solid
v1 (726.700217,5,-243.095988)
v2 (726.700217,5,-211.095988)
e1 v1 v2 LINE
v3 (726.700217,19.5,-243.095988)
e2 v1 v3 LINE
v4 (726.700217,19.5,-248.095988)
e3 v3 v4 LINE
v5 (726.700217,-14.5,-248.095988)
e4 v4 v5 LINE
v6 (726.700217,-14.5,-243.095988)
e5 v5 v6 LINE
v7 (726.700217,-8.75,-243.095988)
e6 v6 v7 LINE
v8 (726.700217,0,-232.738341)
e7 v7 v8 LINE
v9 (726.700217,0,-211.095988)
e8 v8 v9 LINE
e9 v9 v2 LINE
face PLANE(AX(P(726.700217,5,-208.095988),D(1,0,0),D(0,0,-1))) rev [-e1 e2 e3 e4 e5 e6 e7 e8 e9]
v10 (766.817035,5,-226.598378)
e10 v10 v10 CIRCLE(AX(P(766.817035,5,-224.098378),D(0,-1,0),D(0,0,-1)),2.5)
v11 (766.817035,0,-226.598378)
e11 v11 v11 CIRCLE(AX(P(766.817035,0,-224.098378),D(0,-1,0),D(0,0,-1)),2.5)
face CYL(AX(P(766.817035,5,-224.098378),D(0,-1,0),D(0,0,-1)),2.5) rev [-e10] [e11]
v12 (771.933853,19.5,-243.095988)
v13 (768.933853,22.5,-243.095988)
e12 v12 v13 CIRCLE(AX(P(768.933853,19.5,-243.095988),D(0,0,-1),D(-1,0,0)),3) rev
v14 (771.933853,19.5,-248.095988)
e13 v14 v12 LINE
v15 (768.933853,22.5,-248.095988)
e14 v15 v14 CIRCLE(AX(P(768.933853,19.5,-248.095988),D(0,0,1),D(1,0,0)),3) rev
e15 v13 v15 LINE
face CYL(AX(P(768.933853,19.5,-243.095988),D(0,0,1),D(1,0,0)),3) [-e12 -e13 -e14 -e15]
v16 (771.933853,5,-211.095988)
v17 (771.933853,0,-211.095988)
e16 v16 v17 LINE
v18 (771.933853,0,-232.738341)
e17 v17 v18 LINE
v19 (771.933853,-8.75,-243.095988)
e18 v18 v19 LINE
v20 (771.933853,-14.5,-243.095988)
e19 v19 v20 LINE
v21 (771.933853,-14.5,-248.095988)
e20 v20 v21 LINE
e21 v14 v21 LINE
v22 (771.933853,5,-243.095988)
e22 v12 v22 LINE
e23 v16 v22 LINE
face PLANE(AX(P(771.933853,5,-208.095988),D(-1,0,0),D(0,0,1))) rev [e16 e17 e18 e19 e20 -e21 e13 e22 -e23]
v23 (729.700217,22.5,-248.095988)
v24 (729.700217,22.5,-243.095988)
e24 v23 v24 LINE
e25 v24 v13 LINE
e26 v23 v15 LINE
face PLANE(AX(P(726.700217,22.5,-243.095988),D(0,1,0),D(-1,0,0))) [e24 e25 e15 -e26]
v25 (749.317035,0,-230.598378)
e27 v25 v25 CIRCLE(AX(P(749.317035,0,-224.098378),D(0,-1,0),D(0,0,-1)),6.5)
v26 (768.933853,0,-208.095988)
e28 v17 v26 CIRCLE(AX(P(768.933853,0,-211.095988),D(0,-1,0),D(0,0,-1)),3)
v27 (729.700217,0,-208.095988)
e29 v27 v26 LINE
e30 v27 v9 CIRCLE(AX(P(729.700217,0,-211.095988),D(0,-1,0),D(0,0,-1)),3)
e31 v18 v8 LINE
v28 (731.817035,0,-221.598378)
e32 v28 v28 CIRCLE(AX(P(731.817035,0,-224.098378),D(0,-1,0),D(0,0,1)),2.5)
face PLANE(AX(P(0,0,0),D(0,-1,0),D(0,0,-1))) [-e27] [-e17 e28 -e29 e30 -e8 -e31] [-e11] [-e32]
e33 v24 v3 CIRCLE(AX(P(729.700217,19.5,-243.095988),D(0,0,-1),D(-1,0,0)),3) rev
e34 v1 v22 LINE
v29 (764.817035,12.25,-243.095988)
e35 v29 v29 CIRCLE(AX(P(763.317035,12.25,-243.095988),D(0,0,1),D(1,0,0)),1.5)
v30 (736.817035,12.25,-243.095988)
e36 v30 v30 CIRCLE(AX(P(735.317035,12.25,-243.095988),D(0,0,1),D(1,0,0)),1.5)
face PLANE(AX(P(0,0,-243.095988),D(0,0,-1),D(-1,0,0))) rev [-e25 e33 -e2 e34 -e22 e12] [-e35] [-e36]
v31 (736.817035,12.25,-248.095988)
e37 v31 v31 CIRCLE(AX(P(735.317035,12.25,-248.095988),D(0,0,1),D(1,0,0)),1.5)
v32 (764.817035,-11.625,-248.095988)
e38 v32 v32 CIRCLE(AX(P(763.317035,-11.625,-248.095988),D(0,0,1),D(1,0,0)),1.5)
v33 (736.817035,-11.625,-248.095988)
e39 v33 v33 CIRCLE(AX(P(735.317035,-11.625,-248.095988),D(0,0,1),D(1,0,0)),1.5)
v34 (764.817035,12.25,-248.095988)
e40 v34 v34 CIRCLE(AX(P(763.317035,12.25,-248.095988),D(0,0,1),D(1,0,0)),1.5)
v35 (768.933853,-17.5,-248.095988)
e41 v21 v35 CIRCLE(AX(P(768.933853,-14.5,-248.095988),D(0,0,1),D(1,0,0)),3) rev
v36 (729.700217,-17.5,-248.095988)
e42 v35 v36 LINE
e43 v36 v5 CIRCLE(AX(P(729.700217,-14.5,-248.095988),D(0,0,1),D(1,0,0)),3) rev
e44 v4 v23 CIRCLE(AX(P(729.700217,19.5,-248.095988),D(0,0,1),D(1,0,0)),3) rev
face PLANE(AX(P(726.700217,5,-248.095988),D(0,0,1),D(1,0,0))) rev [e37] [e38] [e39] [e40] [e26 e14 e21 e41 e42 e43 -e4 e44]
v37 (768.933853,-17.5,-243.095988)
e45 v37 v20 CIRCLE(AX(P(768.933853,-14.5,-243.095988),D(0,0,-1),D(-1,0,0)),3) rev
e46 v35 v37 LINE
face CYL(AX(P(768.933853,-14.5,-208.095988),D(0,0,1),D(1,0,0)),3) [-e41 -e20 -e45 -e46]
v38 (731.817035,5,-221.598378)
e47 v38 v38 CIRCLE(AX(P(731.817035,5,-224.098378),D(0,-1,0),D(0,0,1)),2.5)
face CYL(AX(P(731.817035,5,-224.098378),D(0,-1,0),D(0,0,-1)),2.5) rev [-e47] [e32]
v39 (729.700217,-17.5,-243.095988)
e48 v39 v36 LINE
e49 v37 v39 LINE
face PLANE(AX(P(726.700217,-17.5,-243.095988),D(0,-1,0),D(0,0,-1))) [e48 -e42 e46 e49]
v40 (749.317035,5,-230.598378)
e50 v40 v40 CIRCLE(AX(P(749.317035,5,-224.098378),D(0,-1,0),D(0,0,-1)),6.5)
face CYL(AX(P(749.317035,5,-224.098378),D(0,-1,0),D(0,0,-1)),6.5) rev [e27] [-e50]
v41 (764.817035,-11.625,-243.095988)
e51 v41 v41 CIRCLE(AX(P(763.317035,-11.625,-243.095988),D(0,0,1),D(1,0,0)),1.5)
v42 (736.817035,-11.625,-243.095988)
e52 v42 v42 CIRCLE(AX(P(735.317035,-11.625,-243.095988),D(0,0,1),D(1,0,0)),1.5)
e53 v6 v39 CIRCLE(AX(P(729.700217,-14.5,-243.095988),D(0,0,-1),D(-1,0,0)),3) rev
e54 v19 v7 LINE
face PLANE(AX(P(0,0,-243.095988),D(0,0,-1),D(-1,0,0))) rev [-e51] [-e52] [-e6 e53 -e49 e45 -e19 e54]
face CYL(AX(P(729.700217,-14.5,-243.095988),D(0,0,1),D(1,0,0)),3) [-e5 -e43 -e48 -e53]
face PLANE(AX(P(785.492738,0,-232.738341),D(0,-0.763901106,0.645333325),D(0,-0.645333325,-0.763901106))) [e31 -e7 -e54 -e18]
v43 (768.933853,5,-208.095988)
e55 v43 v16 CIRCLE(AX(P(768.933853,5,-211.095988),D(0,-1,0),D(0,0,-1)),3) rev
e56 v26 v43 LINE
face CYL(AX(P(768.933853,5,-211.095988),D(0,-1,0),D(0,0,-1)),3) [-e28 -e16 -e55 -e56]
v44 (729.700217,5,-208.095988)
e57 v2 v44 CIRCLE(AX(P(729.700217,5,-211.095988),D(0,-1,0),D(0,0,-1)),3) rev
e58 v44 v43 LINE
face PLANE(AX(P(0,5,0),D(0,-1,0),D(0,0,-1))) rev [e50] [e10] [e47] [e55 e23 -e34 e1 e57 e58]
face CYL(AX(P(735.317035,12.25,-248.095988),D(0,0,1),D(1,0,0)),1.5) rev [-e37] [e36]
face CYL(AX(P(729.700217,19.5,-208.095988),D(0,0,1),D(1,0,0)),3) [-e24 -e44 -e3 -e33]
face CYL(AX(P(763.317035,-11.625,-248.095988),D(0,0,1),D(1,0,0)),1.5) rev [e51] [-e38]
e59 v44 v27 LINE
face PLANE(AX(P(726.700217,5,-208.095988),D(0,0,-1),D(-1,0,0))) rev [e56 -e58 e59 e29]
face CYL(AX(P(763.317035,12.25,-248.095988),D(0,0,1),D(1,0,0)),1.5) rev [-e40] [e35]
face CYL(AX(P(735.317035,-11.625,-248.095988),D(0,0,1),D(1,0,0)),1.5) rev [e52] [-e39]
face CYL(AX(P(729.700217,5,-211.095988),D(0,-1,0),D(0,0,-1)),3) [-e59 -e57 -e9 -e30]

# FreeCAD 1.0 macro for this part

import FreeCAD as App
import Part
import Sketcher
Q = App.Units.Quantity


def edges_at(feature, points):
    """Names of the edges that pass closest to the given points."""
    edges = feature.Shape.Edges
    near = lambda p: min(range(len(edges)), key=lambda i: edges[i].distToShape(Part.Vertex(*p))[0])
    return sorted({f"Edge{near(p) + 1}" for p in points})

doc = App.newDocument("Part")
params = doc.addObject("Spreadsheet::Sheet", "Params")
for row, (alias, value) in enumerate([
    ("sketch1_height", "40 mm"),
    ("pad1_length", "5 mm"),
    ("sketch2_diameter", "5 mm"),
    ("sketch2_diameter2", "13 mm"),
    ("sketch3_height", "40 mm"),
    ("pad2_length", "5 mm"),
    ("sketch4_width", "8.75 mm"),
    ("pad3_length", "45.233637 mm"),
    ("fillet_radius", "3 mm"),
    ("fillet2_radius", "3 mm"),
    ("sketch5_diameter", "3 mm"),
], start=1):
    params.set(f"A{row}", alias)
    params.set(f"B{row}", "=" + value)
    params.setAlias(f"B{row}", alias)

body = doc.addObject("PartDesign::Body", "Body")

sketch1 = body.newObject("Sketcher::SketchObject", "Sketch")
sketch1.AttachmentSupport = (doc.getObject("XZ_Plane"), [""])
sketch1.MapMode = "FlatFace"
sketch1.addGeometry(Part.LineSegment(App.Vector(727, -248, 0), App.Vector(727, -208, 0)), False)
sketch1.addGeometry(Part.LineSegment(App.Vector(727, -208, 0), App.Vector(772, -208, 0)), False)
sketch1.addGeometry(Part.LineSegment(App.Vector(772, -208, 0), App.Vector(772, -248, 0)), False)
sketch1.addGeometry(Part.LineSegment(App.Vector(772, -248, 0), App.Vector(727, -248, 0)), False)
sketch1.addConstraint(Sketcher.Constraint("Coincident", 0, 2, 1, 1))
sketch1.addConstraint(Sketcher.Constraint("Coincident", 1, 2, 2, 1))
sketch1.addConstraint(Sketcher.Constraint("Coincident", 2, 2, 3, 1))
sketch1.addConstraint(Sketcher.Constraint("Coincident", 3, 2, 0, 1))
sketch1.addConstraint(Sketcher.Constraint("Vertical", 0))
sketch1.addConstraint(Sketcher.Constraint("Horizontal", 1))
sketch1.addConstraint(Sketcher.Constraint("Vertical", 2))
sketch1.addConstraint(Sketcher.Constraint("Horizontal", 3))
sketch1.addConstraint(Sketcher.Constraint("DistanceY", 0, 1, 0, 2, Q("40 mm")))
sketch1.addConstraint(Sketcher.Constraint("DistanceX", 1, 1, 1, 2, Q("45.233637 mm")))
sketch1.addConstraint(Sketcher.Constraint("DistanceY", 0, 2, -1, 1, Q("208.095988 mm")))
sketch1.addConstraint(Sketcher.Constraint("DistanceX", -1, 1, 0, 2, Q("726.700217 mm")))
sketch1.setExpression("Constraints[8]", "Params.sketch1_height")
pad1 = body.newObject("PartDesign::Pad", "Pad")
pad1.Profile = sketch1
pad1.setExpression("Length", "Params.pad1_length")
pad1.Reversed = True

sketch2 = body.newObject("Sketcher::SketchObject", "Sketch001")
sketch2.AttachmentSupport = (doc.getObject("XZ_Plane"), [""])
sketch2.MapMode = "FlatFace"
sketch2.addGeometry(Part.Circle(App.Vector(766.8, -224.1, 0), App.Vector(0, 0, 1), 2.5), False)
sketch2.addGeometry(Part.Circle(App.Vector(731.8, -224.1, 0), App.Vector(0, 0, 1), 2.5), False)
sketch2.addGeometry(Part.Circle(App.Vector(749.3, -224.1, 0), App.Vector(0, 0, 1), 6.5), False)
sketch2.addConstraint(Sketcher.Constraint("Equal", 0, 1))
sketch2.addConstraint(Sketcher.Constraint("Horizontal", 0, 3, 1, 3))
sketch2.addConstraint(Sketcher.Constraint("Horizontal", 1, 3, 2, 3))
sketch2.addConstraint(Sketcher.Constraint("Diameter", 0, Q("5 mm")))
sketch2.addConstraint(Sketcher.Constraint("Diameter", 2, Q("13 mm")))
sketch2.addConstraint(Sketcher.Constraint("DistanceX", 1, 3, 0, 3, Q("35 mm")))
sketch2.addConstraint(Sketcher.Constraint("DistanceX", 2, 3, 0, 3, Q("17.5 mm")))
sketch2.addConstraint(Sketcher.Constraint("DistanceY", 0, 3, -1, 1, Q("224.098378 mm")))
sketch2.addConstraint(Sketcher.Constraint("DistanceX", -1, 1, 0, 3, Q("766.817035 mm")))
sketch2.setExpression("Constraints[3]", "Params.sketch2_diameter")
sketch2.setExpression("Constraints[4]", "Params.sketch2_diameter2")
pocket1 = body.newObject("PartDesign::Pocket", "Pocket")
pocket1.Profile = sketch2
pocket1.Type = "ThroughAll"

sketch3 = body.newObject("Sketcher::SketchObject", "Sketch002")
sketch3.AttachmentSupport = (doc.getObject("XY_Plane"), [""])
sketch3.MapMode = "FlatFace"
sketch3.AttachmentOffset = App.Placement(App.Vector(0, 0, -248.095988), App.Rotation())
sketch3.addGeometry(Part.LineSegment(App.Vector(772, 22, 0), App.Vector(772, -18, 0)), False)
sketch3.addGeometry(Part.LineSegment(App.Vector(772, -18, 0), App.Vector(727, -18, 0)), False)
sketch3.addGeometry(Part.LineSegment(App.Vector(727, -18, 0), App.Vector(727, 22, 0)), False)
sketch3.addGeometry(Part.LineSegment(App.Vector(727, 22, 0), App.Vector(772, 22, 0)), False)
sketch3.addConstraint(Sketcher.Constraint("Coincident", 0, 2, 1, 1))
sketch3.addConstraint(Sketcher.Constraint("Coincident", 1, 2, 2, 1))
sketch3.addConstraint(Sketcher.Constraint("Coincident", 2, 2, 3, 1))
sketch3.addConstraint(Sketcher.Constraint("Coincident", 3, 2, 0, 1))
sketch3.addConstraint(Sketcher.Constraint("Vertical", 0))
sketch3.addConstraint(Sketcher.Constraint("Horizontal", 1))
sketch3.addConstraint(Sketcher.Constraint("Vertical", 2))
sketch3.addConstraint(Sketcher.Constraint("Horizontal", 3))
sketch3.addConstraint(Sketcher.Constraint("DistanceY", 0, 2, 0, 1, Q("40 mm")))
sketch3.addConstraint(Sketcher.Constraint("DistanceY", 0, 2, -1, 1, Q("17.5 mm")))
sketch3.addConstraint(Sketcher.Constraint("DistanceX", 1, 2, 1, 1, Q("45.233637 mm")))
sketch3.addConstraint(Sketcher.Constraint("DistanceX", -1, 1, 0, 2, Q("771.933853 mm")))
sketch3.setExpression("Constraints[8]", "Params.sketch3_height")
pad2 = body.newObject("PartDesign::Pad", "Pad001")
pad2.Profile = sketch3
pad2.setExpression("Length", "Params.pad2_length")

sketch4 = body.newObject("Sketcher::SketchObject", "Sketch003")
sketch4.AttachmentSupport = (doc.getObject("YZ_Plane"), [""])
sketch4.MapMode = "FlatFace"
sketch4.AttachmentOffset = App.Placement(App.Vector(0, 0, 726.700217), App.Rotation())
sketch4.addGeometry(Part.LineSegment(App.Vector(-9, -243, 0), App.Vector(0, -233, 0)), False)
sketch4.addGeometry(Part.LineSegment(App.Vector(0, -233, 0), App.Vector(0, -243, 0)), False)
sketch4.addGeometry(Part.LineSegment(App.Vector(0, -243, 0), App.Vector(-9, -243, 0)), False)
sketch4.addConstraint(Sketcher.Constraint("Coincident", 0, 2, 1, 1))
sketch4.addConstraint(Sketcher.Constraint("Coincident", 1, 2, 2, 1))
sketch4.addConstraint(Sketcher.Constraint("Coincident", 2, 2, 0, 1))
sketch4.addConstraint(Sketcher.Constraint("Vertical", 1))
sketch4.addConstraint(Sketcher.Constraint("Horizontal", 2))
sketch4.addConstraint(Sketcher.Constraint("PointOnObject", 0, 2, -2))
sketch4.addConstraint(Sketcher.Constraint("DistanceX", 2, 2, 2, 1, Q("8.75 mm")))
sketch4.addConstraint(Sketcher.Constraint("DistanceY", 1, 2, 1, 1, Q("10.357647 mm")))
sketch4.addConstraint(Sketcher.Constraint("DistanceY", 0, 2, -1, 1, Q("232.738341 mm")))
sketch4.setExpression("Constraints[6]", "Params.sketch4_width")
pad3 = body.newObject("PartDesign::Pad", "Pad002")
pad3.Profile = sketch4
pad3.setExpression("Length", "Params.pad3_length")
doc.recompute()

fillet = body.newObject("PartDesign::Fillet", "Fillet")
fillet.Base = (pad3, edges_at(pad3, [(771.934, 2.5, -208.096), (726.7, 2.5, -208.096)]))
fillet.setExpression("Radius", "Params.fillet_radius")
doc.recompute()

fillet2 = body.newObject("PartDesign::Fillet", "Fillet001")
fillet2.Base = (fillet, edges_at(fillet, [
    (726.7, 22.5, -245.596),
    (771.934, -17.5, -245.596),
    (771.934, 22.5, -245.596),
    (726.7, -17.5, -245.596),
]))
fillet2.setExpression("Radius", "Params.fillet2_radius")

sketch5 = body.newObject("Sketcher::SketchObject", "Sketch004")
sketch5.AttachmentSupport = (doc.getObject("XY_Plane"), [""])
sketch5.MapMode = "FlatFace"
sketch5.AttachmentOffset = App.Placement(App.Vector(0, 0, -243.095988), App.Rotation())
sketch5.addGeometry(Part.Circle(App.Vector(763.3, 12.2, 0), App.Vector(0, 0, 1), 1.5), False)
sketch5.addGeometry(Part.Circle(App.Vector(763.3, -11.6, 0), App.Vector(0, 0, 1), 1.5), False)
sketch5.addGeometry(Part.Circle(App.Vector(735.3, -11.6, 0), App.Vector(0, 0, 1), 1.5), False)
sketch5.addGeometry(Part.Circle(App.Vector(735.3, 12.2, 0), App.Vector(0, 0, 1), 1.5), False)
sketch5.addConstraint(Sketcher.Constraint("Equal", 0, 1))
sketch5.addConstraint(Sketcher.Constraint("Equal", 1, 2))
sketch5.addConstraint(Sketcher.Constraint("Equal", 2, 3))
sketch5.addConstraint(Sketcher.Constraint("Horizontal", 1, 3, 2, 3))
sketch5.addConstraint(Sketcher.Constraint("Horizontal", 0, 3, 3, 3))
sketch5.addConstraint(Sketcher.Constraint("Vertical", 0, 3, 1, 3))
sketch5.addConstraint(Sketcher.Constraint("Vertical", 2, 3, 3, 3))
sketch5.addConstraint(Sketcher.Constraint("Diameter", 0, Q("3 mm")))
sketch5.addConstraint(Sketcher.Constraint("DistanceX", 2, 3, 1, 3, Q("28 mm")))
sketch5.addConstraint(Sketcher.Constraint("DistanceY", -1, 1, 0, 3, Q("12.25 mm")))
sketch5.addConstraint(Sketcher.Constraint("DistanceY", 1, 3, -1, 1, Q("11.625 mm")))
sketch5.addConstraint(Sketcher.Constraint("DistanceX", -1, 1, 0, 3, Q("763.317035 mm")))
sketch5.setExpression("Constraints[7]", "Params.sketch5_diameter")
pocket2 = body.newObject("PartDesign::Pocket", "Pocket001")
pocket2.Profile = sketch5
pocket2.Type = "ThroughAll"

doc.recompute()
